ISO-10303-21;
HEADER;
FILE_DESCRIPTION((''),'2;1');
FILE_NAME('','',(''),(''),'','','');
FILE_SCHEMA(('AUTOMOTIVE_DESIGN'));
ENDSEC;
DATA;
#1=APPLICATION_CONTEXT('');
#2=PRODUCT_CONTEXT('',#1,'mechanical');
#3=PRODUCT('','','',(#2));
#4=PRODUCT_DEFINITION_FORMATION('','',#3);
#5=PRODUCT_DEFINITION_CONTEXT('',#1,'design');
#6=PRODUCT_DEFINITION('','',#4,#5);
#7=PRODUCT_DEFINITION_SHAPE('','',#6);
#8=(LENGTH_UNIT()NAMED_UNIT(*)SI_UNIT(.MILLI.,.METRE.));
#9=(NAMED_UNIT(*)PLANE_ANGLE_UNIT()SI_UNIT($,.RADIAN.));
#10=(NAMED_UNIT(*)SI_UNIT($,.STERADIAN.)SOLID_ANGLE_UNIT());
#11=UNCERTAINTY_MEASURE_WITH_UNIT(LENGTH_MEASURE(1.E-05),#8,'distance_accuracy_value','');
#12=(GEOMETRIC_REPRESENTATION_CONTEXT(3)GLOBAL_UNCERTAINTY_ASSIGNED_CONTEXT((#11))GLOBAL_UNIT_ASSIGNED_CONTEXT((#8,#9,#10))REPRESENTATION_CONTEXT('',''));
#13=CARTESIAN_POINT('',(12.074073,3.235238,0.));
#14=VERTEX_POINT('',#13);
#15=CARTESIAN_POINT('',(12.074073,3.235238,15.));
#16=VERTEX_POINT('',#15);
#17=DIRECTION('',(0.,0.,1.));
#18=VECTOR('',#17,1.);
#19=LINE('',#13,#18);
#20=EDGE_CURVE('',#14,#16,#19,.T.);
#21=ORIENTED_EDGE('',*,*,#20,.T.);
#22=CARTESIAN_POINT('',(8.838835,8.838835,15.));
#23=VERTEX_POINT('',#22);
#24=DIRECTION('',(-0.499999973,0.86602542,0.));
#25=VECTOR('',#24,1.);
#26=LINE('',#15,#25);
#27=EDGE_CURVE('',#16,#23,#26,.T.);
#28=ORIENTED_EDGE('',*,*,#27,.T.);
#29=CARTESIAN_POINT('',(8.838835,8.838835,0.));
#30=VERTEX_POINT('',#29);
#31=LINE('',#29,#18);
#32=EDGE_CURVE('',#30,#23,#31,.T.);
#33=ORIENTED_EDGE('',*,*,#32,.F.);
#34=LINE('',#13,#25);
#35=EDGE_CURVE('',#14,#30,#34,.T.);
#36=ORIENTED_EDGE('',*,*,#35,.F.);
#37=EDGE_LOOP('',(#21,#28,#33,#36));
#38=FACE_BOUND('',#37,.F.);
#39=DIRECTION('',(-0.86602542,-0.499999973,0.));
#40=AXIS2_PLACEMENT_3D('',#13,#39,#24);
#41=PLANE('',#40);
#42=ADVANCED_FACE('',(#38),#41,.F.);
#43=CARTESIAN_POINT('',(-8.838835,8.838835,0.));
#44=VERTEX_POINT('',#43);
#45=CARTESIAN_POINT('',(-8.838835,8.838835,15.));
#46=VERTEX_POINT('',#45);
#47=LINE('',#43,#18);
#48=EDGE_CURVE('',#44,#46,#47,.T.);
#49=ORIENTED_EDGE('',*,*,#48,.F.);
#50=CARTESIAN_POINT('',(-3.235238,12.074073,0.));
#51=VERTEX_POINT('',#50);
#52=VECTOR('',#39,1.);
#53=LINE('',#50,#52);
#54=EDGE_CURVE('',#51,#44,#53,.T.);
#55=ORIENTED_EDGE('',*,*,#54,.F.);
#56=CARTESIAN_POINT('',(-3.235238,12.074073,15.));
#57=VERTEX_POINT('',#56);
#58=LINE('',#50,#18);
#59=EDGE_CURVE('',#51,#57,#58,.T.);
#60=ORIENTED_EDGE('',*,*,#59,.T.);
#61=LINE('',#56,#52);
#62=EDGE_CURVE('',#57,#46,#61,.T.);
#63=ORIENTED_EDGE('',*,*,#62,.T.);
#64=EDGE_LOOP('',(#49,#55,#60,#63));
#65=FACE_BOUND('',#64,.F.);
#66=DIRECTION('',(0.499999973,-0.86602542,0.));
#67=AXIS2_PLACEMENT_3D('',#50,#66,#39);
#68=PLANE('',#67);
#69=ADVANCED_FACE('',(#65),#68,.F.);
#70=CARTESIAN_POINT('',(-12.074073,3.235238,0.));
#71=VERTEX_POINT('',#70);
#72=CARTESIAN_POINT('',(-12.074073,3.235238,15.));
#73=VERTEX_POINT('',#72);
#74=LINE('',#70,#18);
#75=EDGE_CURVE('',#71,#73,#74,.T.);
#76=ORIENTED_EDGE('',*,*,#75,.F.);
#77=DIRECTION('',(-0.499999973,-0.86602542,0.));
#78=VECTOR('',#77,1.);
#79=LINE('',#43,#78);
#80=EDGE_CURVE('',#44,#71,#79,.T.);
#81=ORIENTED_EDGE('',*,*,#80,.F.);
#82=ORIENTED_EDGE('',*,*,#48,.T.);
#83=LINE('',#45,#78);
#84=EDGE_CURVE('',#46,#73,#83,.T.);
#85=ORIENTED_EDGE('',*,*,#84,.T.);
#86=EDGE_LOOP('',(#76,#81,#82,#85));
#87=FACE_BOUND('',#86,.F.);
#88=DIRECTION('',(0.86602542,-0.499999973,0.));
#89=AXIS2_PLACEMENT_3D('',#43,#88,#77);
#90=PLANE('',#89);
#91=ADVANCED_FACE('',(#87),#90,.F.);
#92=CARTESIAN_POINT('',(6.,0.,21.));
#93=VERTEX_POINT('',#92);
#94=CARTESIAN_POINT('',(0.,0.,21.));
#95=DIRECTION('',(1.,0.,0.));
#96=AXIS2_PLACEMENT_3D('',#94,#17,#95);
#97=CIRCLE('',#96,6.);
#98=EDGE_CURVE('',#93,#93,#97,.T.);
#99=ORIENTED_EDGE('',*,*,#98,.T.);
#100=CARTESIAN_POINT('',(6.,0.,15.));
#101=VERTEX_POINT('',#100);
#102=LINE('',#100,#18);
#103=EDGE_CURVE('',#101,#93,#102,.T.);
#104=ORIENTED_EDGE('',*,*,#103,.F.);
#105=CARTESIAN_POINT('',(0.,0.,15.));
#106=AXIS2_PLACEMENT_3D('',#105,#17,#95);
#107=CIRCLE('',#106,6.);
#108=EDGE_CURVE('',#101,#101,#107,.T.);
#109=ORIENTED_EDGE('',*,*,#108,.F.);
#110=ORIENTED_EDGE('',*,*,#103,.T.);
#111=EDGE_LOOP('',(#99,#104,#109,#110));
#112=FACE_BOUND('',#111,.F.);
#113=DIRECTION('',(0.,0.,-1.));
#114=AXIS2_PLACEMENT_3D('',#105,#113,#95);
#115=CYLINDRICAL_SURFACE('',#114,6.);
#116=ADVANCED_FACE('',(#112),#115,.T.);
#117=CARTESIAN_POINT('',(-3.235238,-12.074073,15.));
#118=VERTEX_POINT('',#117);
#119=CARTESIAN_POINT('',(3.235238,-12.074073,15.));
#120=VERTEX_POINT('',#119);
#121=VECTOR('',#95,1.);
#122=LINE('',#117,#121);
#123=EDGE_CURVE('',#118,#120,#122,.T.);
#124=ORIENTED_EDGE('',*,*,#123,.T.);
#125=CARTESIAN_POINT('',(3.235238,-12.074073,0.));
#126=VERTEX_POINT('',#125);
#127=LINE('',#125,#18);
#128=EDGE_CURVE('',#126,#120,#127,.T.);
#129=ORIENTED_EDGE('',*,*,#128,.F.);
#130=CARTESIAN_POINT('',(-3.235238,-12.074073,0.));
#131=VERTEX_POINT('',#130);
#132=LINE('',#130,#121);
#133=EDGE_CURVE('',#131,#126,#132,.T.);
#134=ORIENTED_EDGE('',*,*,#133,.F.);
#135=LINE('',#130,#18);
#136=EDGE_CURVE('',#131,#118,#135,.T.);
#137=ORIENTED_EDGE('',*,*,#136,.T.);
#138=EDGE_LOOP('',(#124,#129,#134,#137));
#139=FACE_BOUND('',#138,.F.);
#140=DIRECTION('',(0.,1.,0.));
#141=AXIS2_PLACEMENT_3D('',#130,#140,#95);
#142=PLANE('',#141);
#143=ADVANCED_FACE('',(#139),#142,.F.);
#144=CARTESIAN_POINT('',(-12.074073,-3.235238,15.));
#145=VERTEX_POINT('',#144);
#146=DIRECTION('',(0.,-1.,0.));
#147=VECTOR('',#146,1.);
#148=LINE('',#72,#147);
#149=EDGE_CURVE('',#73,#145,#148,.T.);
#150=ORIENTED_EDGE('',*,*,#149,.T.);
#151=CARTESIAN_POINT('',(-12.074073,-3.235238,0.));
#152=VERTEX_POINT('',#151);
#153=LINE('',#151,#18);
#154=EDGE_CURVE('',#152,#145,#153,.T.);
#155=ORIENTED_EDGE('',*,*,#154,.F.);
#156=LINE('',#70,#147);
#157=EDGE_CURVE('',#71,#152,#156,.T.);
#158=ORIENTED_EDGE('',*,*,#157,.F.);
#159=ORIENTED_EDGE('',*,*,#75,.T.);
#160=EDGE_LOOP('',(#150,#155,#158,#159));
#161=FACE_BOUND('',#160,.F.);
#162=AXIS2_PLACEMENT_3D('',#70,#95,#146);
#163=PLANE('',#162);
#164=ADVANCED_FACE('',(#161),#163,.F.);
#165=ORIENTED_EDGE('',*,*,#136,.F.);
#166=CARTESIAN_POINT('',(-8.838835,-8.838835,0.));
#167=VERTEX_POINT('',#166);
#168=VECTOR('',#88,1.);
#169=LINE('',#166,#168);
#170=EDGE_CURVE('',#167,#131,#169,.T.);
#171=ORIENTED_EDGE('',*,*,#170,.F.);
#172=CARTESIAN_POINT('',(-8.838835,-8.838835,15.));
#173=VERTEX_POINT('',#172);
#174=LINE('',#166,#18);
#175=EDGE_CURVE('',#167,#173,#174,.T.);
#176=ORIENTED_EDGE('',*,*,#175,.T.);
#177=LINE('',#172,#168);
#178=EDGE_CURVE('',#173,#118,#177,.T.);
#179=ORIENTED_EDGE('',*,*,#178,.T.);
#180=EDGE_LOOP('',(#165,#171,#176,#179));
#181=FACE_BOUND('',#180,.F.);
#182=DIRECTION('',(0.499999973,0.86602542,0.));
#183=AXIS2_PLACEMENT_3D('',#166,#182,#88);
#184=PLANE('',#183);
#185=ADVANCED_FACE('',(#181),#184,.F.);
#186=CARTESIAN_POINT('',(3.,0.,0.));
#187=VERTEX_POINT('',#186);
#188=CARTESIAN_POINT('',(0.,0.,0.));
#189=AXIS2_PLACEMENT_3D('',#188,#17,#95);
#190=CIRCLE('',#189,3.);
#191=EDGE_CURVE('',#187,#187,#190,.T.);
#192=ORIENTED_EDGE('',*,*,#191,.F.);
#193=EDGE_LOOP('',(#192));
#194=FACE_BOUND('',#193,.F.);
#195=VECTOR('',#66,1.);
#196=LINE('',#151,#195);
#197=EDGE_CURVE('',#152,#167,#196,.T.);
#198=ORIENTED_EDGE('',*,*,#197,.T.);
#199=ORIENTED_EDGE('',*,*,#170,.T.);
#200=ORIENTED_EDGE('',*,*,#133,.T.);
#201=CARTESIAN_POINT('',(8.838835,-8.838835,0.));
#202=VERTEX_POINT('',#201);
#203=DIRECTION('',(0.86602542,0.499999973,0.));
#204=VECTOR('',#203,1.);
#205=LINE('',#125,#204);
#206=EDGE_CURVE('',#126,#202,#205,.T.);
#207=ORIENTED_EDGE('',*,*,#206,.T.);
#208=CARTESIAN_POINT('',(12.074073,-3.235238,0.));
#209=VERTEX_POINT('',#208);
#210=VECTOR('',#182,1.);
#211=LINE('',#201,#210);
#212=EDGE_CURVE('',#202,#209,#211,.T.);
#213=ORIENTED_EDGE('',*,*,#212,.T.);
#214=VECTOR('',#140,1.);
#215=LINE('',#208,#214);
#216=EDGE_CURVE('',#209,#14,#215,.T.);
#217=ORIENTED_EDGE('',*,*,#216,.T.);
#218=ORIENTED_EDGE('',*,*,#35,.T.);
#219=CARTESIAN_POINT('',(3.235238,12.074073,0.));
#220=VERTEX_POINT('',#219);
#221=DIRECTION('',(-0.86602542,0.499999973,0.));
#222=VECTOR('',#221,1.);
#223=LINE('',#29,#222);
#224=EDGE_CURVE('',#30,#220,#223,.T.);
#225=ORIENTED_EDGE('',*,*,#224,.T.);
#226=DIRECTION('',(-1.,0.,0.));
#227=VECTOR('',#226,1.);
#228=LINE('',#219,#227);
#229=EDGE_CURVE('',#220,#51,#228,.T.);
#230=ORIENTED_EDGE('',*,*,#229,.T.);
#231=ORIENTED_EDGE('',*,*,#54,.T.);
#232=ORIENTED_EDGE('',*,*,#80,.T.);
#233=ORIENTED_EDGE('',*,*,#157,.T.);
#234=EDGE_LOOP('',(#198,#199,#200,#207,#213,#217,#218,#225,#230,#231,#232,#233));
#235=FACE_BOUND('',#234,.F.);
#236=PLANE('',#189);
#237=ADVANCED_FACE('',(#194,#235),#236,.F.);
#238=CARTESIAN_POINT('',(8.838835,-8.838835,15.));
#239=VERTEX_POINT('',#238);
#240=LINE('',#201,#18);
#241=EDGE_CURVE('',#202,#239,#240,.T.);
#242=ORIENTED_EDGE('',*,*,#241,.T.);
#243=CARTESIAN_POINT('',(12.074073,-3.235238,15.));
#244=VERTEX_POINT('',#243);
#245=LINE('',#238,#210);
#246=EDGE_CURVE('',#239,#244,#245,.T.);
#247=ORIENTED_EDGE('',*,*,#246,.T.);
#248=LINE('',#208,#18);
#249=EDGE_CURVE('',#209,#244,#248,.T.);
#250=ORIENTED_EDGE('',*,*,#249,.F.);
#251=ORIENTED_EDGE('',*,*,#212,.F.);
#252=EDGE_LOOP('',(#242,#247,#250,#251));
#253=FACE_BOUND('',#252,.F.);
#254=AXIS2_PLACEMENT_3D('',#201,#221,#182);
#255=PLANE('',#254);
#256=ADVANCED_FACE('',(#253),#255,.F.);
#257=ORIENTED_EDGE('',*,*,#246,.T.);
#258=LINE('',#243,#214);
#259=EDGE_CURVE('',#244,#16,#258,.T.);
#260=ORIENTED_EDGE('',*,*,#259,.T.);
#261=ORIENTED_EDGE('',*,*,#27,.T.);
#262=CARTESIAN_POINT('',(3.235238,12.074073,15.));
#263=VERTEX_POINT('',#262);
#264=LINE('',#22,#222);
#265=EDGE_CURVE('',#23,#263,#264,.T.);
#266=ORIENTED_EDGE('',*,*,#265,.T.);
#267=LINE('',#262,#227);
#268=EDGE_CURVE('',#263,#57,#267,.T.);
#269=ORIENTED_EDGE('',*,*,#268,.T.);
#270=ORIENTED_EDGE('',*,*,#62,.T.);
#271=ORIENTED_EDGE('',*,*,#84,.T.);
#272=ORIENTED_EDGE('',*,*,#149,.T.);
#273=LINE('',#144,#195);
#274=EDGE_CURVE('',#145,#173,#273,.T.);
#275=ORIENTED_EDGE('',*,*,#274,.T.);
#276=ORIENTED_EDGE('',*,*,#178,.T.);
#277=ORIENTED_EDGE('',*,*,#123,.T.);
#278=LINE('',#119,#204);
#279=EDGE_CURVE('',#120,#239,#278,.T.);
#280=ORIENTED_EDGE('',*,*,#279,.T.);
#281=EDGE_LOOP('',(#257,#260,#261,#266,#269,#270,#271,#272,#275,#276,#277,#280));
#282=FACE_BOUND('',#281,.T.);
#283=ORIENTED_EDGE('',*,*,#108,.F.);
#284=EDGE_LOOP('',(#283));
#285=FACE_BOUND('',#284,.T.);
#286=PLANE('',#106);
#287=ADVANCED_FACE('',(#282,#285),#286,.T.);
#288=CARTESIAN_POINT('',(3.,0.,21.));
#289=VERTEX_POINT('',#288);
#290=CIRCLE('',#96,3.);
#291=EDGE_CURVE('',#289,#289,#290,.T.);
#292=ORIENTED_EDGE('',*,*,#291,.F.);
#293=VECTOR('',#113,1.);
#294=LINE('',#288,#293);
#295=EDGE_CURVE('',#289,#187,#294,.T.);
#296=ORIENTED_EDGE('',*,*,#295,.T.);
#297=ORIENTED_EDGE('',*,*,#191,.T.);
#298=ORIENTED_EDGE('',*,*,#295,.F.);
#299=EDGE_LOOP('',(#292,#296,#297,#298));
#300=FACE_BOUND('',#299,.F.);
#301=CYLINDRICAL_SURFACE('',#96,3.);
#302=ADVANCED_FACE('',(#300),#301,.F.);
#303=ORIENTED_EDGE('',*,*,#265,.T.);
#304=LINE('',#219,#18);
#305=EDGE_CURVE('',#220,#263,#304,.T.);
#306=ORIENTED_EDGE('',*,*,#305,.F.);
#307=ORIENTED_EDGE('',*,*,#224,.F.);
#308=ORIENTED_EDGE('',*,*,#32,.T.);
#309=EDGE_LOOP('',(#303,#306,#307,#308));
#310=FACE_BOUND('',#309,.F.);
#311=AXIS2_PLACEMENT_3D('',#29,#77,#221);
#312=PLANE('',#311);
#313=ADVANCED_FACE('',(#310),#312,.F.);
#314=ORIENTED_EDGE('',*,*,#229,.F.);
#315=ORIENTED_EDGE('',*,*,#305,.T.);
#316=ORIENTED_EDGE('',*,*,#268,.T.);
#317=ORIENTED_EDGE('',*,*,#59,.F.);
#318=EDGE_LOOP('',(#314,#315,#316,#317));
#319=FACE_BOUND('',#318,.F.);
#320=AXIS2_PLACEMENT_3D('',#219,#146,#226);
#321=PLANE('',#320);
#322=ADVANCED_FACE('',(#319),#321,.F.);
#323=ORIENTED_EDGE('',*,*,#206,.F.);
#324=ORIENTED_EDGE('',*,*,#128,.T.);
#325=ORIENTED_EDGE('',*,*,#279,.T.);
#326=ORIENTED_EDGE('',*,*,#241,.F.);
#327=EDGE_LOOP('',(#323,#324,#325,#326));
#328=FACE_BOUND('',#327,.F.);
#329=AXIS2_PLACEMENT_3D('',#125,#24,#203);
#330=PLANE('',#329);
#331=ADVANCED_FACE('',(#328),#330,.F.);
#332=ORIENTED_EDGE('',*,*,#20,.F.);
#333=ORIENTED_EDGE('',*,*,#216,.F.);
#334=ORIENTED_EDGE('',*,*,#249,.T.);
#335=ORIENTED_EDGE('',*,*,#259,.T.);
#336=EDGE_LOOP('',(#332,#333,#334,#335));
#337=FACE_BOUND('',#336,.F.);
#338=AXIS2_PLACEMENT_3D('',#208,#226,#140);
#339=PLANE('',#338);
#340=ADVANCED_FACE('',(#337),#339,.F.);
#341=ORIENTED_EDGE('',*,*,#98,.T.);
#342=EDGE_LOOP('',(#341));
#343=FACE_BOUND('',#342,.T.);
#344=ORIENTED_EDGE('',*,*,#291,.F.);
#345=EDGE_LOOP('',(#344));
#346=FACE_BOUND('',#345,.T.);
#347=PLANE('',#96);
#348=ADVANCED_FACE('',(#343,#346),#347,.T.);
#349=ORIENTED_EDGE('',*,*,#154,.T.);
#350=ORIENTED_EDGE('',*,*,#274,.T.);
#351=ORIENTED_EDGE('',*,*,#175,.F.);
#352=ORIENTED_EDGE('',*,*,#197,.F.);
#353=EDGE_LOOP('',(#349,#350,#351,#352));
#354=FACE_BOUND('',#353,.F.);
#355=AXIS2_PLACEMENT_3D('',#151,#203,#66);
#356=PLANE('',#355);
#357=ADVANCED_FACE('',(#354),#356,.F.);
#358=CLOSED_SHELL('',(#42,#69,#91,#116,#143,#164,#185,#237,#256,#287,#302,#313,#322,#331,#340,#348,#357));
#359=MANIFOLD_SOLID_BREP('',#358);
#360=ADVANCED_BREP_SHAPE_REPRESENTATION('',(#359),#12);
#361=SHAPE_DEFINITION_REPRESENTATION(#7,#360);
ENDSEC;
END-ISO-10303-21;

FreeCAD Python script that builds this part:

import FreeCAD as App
import Part
import Sketcher
from FreeCAD import Vector
Q = App.Units.Quantity


def add_polygon(sketch, points):
    """Adds a closed chain of lines whose ends are joined by coincident constraints."""
    first, n = sketch.GeometryCount, len(points)
    for a, b in zip(points, points[1:] + points[:1]):
        sketch.addGeometry(Part.LineSegment(App.Vector(*a, 0), App.Vector(*b, 0)), False)
    for i in range(n):
        sketch.addConstraint(Sketcher.Constraint("Coincident", first + i, 2, first + (i + 1) % n, 1))

doc = App.newDocument("Part")
params = doc.addObject("Spreadsheet::Sheet", "Params")
for row, (alias, value) in enumerate([
    ("pad1_length", "15 mm"),
    ("sketch2_diameter", "12 mm"),
    ("pad2_length", "6 mm"),
    ("sketch3_diameter", "6 mm"),
], start=1):
    params.set(f"A{row}", alias)
    params.set(f"B{row}", "=" + value)
    params.setAlias(f"B{row}", alias)

body = doc.addObject("PartDesign::Body", "Body")

sketch1 = body.newObject("Sketcher::SketchObject", "Sketch")
sketch1.AttachmentSupport = (doc.getObject("XY_Plane"), [""])
sketch1.MapMode = "FlatFace"
add_polygon(sketch1, [(8.838835, 8.838835), (3.235238, 12.074073), (-3.235238, 12.074073), (-8.838835, 8.838835), (-12.074073, 3.235238), (-12.074073, -3.235238), (-8.838835, -8.838835), (-3.235238, -12.074073), (3.235238, -12.074073), (8.838835, -8.838835), (12.074073, -3.235238), (12.074073, 3.235238)])
sketch1.addConstraint([
    Sketcher.Constraint("Horizontal", 1),
    Sketcher.Constraint("Vertical", 4),
    Sketcher.Constraint("Horizontal", 7),
    Sketcher.Constraint("Vertical", 10),
    Sketcher.Constraint("Symmetric", 0, 2, 6, 2, -1, 1),
    Sketcher.Constraint("Symmetric", 2, 2, 8, 2, -1, 1),
    Sketcher.Constraint("Symmetric", 3, 2, 9, 2, -1, 1),
    Sketcher.Constraint("Symmetric", 5, 2, 11, 2, -1, 1),
    Sketcher.Constraint("Symmetric", 5, 2, 8, 2, -2),
    Sketcher.Constraint("Perpendicular", 0, 3),
    Sketcher.Constraint("Perpendicular", 2, 5),
    Sketcher.Constraint("Perpendicular", 5, 8),
    Sketcher.Constraint("Perpendicular", 8, 11),
    Sketcher.Constraint("Horizontal", 4, 2, 9, 2),
    Sketcher.Constraint("Equal", 7, 4),
    Sketcher.Constraint("Equal", 2, 3),
    Sketcher.Constraint("Angle", 0, Q("150.000002 deg")),
    Sketcher.Constraint("DistanceX", 1, 2, 1, 1, Q("6.470476 mm")),
    Sketcher.Constraint("DistanceY", 2, 2, 1, 2, Q("3.235238 mm")),
])
pad1 = body.newObject("PartDesign::Pad", "Pad")
pad1.Profile = sketch1
pad1.setExpression("Length", "Params.pad1_length")

sketch2 = body.newObject("Sketcher::SketchObject", "Sketch001")
sketch2.AttachmentSupport = (doc.getObject("XY_Plane"), [""])
sketch2.MapMode = "FlatFace"
sketch2.AttachmentOffset = App.Placement(Vector(0, 0, 15), App.Rotation())
sketch2.addGeometry(Part.Circle(Vector(0, 0, 0), Vector(0, 0, 1), 6), False)
sketch2.addConstraint([
    Sketcher.Constraint("Coincident", 0, 3, -1, 1),
    Sketcher.Constraint("Diameter", 0, Q("12 mm")),
])
sketch2.setExpression("Constraints[1]", "Params.sketch2_diameter")
pad2 = body.newObject("PartDesign::Pad", "Pad001")
pad2.Profile = sketch2
pad2.setExpression("Length", "Params.pad2_length")

sketch3 = body.newObject("Sketcher::SketchObject", "Sketch002")
sketch3.AttachmentSupport = (doc.getObject("XY_Plane"), [""])
sketch3.MapMode = "FlatFace"
sketch3.AttachmentOffset = App.Placement(Vector(0, 0, 21), App.Rotation())
sketch3.addGeometry(Part.Circle(Vector(0, 0, 0), Vector(0, 0, 1), 3), False)
sketch3.addConstraint([
    Sketcher.Constraint("Coincident", 0, 3, -1, 1),
    Sketcher.Constraint("Diameter", 0, Q("6 mm")),
])
sketch3.setExpression("Constraints[1]", "Params.sketch3_diameter")
pocket1 = body.newObject("PartDesign::Pocket", "Pocket")
pocket1.Profile = sketch3
pocket1.Type = "ThroughAll"

doc.recompute()
